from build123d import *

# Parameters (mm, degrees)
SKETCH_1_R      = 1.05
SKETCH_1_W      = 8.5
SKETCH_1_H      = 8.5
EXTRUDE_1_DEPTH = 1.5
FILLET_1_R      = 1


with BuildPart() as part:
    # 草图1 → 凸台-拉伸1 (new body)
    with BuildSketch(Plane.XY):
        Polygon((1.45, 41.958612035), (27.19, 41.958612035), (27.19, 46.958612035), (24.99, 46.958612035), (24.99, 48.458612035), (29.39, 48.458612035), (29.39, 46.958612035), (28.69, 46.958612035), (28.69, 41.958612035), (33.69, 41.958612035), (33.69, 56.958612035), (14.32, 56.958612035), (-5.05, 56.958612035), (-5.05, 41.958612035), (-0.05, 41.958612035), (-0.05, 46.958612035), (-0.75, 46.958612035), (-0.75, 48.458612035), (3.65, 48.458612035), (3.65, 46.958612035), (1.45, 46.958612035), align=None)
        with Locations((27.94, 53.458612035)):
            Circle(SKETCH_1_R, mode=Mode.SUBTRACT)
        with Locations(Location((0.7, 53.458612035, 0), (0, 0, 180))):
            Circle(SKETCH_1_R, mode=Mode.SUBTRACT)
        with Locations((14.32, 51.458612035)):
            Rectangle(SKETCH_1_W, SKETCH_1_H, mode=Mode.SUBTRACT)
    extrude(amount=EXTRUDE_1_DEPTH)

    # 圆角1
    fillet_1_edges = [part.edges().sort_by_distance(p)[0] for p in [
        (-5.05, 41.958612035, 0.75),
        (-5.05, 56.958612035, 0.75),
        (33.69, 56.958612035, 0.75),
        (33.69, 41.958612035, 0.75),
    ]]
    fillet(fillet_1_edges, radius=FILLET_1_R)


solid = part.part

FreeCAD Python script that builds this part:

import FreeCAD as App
import Part
import Sketcher


def edges_at(feature, points):
    """Names of the edges that pass closest to the given points."""
    edges = feature.Shape.Edges
    near = lambda p: min(range(len(edges)), key=lambda i: edges[i].distToShape(Part.Vertex(*p))[0])
    return sorted({f"Edge{near(p) + 1}" for p in points})

doc = App.newDocument("Part")
params = doc.addObject("Spreadsheet::Sheet", "Params")
for row, (alias, value) in enumerate([
    ("sketch1_diameter", "2.1 mm"),
    ("sketch1_width", "5 mm"),
    ("sketch1_height", "15 mm"),
    ("sketch1_width2", "2.2 mm"),
    ("sketch1_width3", "4.4 mm"),
    ("pad1_length", "1.5 mm"),
    ("fillet_radius", "1 mm"),
], start=1):
    params.set(f"A{row}", alias)
    params.set(f"B{row}", "=" + value)
    params.setAlias(f"B{row}", alias)

body = doc.addObject("PartDesign::Body", "Body")

sketch1 = body.newObject("Sketcher::SketchObject", "Sketch")
sketch1.AttachmentSupport = (doc.getObject("XY_Plane"), [""])
sketch1.MapMode = "FlatFace"
sketch1.addGeometry([
    Part.LineSegment(App.Vector(1.4, 42, 0), App.Vector(27.2, 42, 0)),
    Part.LineSegment(App.Vector(27.2, 42, 0), App.Vector(27.2, 47, 0)),
    Part.LineSegment(App.Vector(27.2, 47, 0), App.Vector(25, 47, 0)),
    Part.LineSegment(App.Vector(25, 47, 0), App.Vector(25, 48.5, 0)),
    Part.LineSegment(App.Vector(25, 48.5, 0), App.Vector(29.4, 48.5, 0)),
    Part.LineSegment(App.Vector(29.4, 48.5, 0), App.Vector(29.4, 47, 0)),
    Part.LineSegment(App.Vector(29.4, 47, 0), App.Vector(28.7, 47, 0)),
    Part.LineSegment(App.Vector(28.7, 47, 0), App.Vector(28.7, 42, 0)),
    Part.LineSegment(App.Vector(28.7, 42, 0), App.Vector(33.7, 42, 0)),
    Part.LineSegment(App.Vector(33.7, 42, 0), App.Vector(33.7, 57, 0)),
    Part.LineSegment(App.Vector(33.7, 57, 0), App.Vector(-5, 57, 0)),
    Part.LineSegment(App.Vector(-5, 57, 0), App.Vector(-5, 42, 0)),
    Part.LineSegment(App.Vector(-5, 42, 0), App.Vector(-0.1, 42, 0)),
    Part.LineSegment(App.Vector(-0.1, 42, 0), App.Vector(-0.1, 47, 0)),
    Part.LineSegment(App.Vector(-0.1, 47, 0), App.Vector(-0.8, 47, 0)),
    Part.LineSegment(App.Vector(-0.8, 47, 0), App.Vector(-0.8, 48.5, 0)),
    Part.LineSegment(App.Vector(-0.8, 48.5, 0), App.Vector(3.6, 48.5, 0)),
    Part.LineSegment(App.Vector(3.6, 48.5, 0), App.Vector(3.6, 47, 0)),
    Part.LineSegment(App.Vector(3.6, 47, 0), App.Vector(1.4, 47, 0)),
    Part.LineSegment(App.Vector(1.4, 47, 0), App.Vector(1.4, 42, 0)),
    Part.Circle(App.Vector(0.7, 53.5, 0), App.Vector(0, 0, 1), 1.1),
    Part.LineSegment(App.Vector(18.6, 47.2, 0), App.Vector(10.1, 47.2, 0)),
    Part.LineSegment(App.Vector(10.1, 47.2, 0), App.Vector(10.1, 55.7, 0)),
    Part.LineSegment(App.Vector(10.1, 55.7, 0), App.Vector(18.6, 55.7, 0)),
    Part.LineSegment(App.Vector(18.6, 55.7, 0), App.Vector(18.6, 47.2, 0)),
    Part.Circle(App.Vector(27.9, 53.5, 0), App.Vector(0, 0, 1), 1.1),
], False)
sketch1.addConstraint([
    Sketcher.Constraint("Coincident", 0, 2, 1, 1),
    Sketcher.Constraint("Coincident", 1, 2, 2, 1),
    Sketcher.Constraint("Coincident", 2, 2, 3, 1),
    Sketcher.Constraint("Coincident", 3, 2, 4, 1),
    Sketcher.Constraint("Coincident", 4, 2, 5, 1),
    Sketcher.Constraint("Coincident", 5, 2, 6, 1),
    Sketcher.Constraint("Coincident", 6, 2, 7, 1),
    Sketcher.Constraint("Coincident", 7, 2, 8, 1),
    Sketcher.Constraint("Coincident", 8, 2, 9, 1),
    Sketcher.Constraint("Coincident", 9, 2, 10, 1),
    Sketcher.Constraint("Coincident", 10, 2, 11, 1),
    Sketcher.Constraint("Coincident", 11, 2, 12, 1),
    Sketcher.Constraint("Coincident", 12, 2, 13, 1),
    Sketcher.Constraint("Coincident", 13, 2, 14, 1),
    Sketcher.Constraint("Coincident", 14, 2, 15, 1),
    Sketcher.Constraint("Coincident", 15, 2, 16, 1),
    Sketcher.Constraint("Coincident", 16, 2, 17, 1),
    Sketcher.Constraint("Coincident", 17, 2, 18, 1),
    Sketcher.Constraint("Coincident", 18, 2, 19, 1),
    Sketcher.Constraint("Coincident", 19, 2, 0, 1),
    Sketcher.Constraint("Coincident", 21, 2, 22, 1),
    Sketcher.Constraint("Coincident", 22, 2, 23, 1),
    Sketcher.Constraint("Coincident", 23, 2, 24, 1),
    Sketcher.Constraint("Coincident", 24, 2, 21, 1),
    Sketcher.Constraint("Horizontal", 0),
    Sketcher.Constraint("Vertical", 1),
    Sketcher.Constraint("Horizontal", 2),
    Sketcher.Constraint("Vertical", 3),
    Sketcher.Constraint("Horizontal", 4),
    Sketcher.Constraint("Vertical", 5),
    Sketcher.Constraint("Horizontal", 6),
    Sketcher.Constraint("Vertical", 7),
    Sketcher.Constraint("Horizontal", 8),
    Sketcher.Constraint("Vertical", 9),
    Sketcher.Constraint("Horizontal", 10),
    Sketcher.Constraint("Vertical", 11),
    Sketcher.Constraint("Horizontal", 12),
    Sketcher.Constraint("Vertical", 13),
    Sketcher.Constraint("Horizontal", 14),
    Sketcher.Constraint("Vertical", 15),
    Sketcher.Constraint("Horizontal", 16),
    Sketcher.Constraint("Vertical", 17),
    Sketcher.Constraint("Horizontal", 18),
    Sketcher.Constraint("Vertical", 19),
    Sketcher.Constraint("Horizontal", 21),
    Sketcher.Constraint("Vertical", 22),
    Sketcher.Constraint("Horizontal", 23),
    Sketcher.Constraint("Vertical", 24),
    Sketcher.Constraint("Equal", 20, 25),
    Sketcher.Constraint("Horizontal", 20, 3, 25, 3),
    Sketcher.Constraint("Horizontal", 2, 2, 5, 2),
    Sketcher.Constraint("Horizontal", 0, 2, 7, 2),
    Sketcher.Constraint("Horizontal", 8, 2, 11, 2),
    Sketcher.Constraint("Horizontal", 6, 2, 13, 2),
    Sketcher.Constraint("Horizontal", 4, 2, 15, 2),
    Sketcher.Constraint("Horizontal", 14, 2, 17, 2),
    Sketcher.Constraint("Equal", 8, 12),
    Sketcher.Constraint("Equal", 6, 14),
    Sketcher.Constraint("Equal", 4, 16),
    Sketcher.Constraint("Equal", 2, 18),
    Sketcher.Constraint("Equal", 12, 1),
    Sketcher.Constraint("Equal", 23, 22),
    Sketcher.Constraint("Diameter", 20, 2.1),
    Sketcher.Constraint("DistanceX", 8, 1, 8, 2, 5.0),
    Sketcher.Constraint("DistanceY", 9, 1, 9, 2, 15.0),
    Sketcher.Constraint("DistanceX", 2, 2, 2, 1, 2.2),
    Sketcher.Constraint("DistanceX", 4, 1, 4, 2, 4.4),
    Sketcher.Constraint("DistanceX", 6, 2, 6, 1, 0.7),
    Sketcher.Constraint("DistanceX", 21, 2, 21, 1, 8.5),
    Sketcher.Constraint("DistanceY", 3, 1, 3, 2, 1.5),
    Sketcher.Constraint("DistanceY", 3, 2, 25, 3, 5.0),
    Sketcher.Constraint("DistanceX", 0, 1, 0, 2, 25.74),
    Sketcher.Constraint("DistanceX", -1, 1, 20, 3, 0.7),
    Sketcher.Constraint("DistanceX", -1, 1, 25, 3, 27.94),
    Sketcher.Constraint("DistanceX", -1, 1, 0, 2, 27.19),
    Sketcher.Constraint("DistanceX", -1, 1, 21, 2, 10.07),
    Sketcher.Constraint("DistanceY", 17, 2, 21, 2, 0.25),
    Sketcher.Constraint("DistanceY", -1, 1, 20, 3, 53.458612),
])
sketch1.setExpression("Constraints[62]", "Params.sketch1_diameter")
sketch1.setExpression("Constraints[63]", "Params.sketch1_width")
sketch1.setExpression("Constraints[64]", "Params.sketch1_height")
sketch1.setExpression("Constraints[65]", "Params.sketch1_width2")
sketch1.setExpression("Constraints[66]", "Params.sketch1_width3")
pad1 = body.newObject("PartDesign::Pad", "Pad")
pad1.Profile = sketch1
pad1.setExpression("Length", "Params.pad1_length")
doc.recompute()

fillet = body.newObject("PartDesign::Fillet", "Fillet")
fillet.Base = (pad1, edges_at(pad1, [
    (-5.05, 41.959, 0.75),
    (-5.05, 56.959, 0.75),
    (33.69, 56.959, 0.75),
    (33.69, 41.959, 0.75),
]))
fillet.setExpression("Radius", "Params.fillet_radius")

doc.recompute()
